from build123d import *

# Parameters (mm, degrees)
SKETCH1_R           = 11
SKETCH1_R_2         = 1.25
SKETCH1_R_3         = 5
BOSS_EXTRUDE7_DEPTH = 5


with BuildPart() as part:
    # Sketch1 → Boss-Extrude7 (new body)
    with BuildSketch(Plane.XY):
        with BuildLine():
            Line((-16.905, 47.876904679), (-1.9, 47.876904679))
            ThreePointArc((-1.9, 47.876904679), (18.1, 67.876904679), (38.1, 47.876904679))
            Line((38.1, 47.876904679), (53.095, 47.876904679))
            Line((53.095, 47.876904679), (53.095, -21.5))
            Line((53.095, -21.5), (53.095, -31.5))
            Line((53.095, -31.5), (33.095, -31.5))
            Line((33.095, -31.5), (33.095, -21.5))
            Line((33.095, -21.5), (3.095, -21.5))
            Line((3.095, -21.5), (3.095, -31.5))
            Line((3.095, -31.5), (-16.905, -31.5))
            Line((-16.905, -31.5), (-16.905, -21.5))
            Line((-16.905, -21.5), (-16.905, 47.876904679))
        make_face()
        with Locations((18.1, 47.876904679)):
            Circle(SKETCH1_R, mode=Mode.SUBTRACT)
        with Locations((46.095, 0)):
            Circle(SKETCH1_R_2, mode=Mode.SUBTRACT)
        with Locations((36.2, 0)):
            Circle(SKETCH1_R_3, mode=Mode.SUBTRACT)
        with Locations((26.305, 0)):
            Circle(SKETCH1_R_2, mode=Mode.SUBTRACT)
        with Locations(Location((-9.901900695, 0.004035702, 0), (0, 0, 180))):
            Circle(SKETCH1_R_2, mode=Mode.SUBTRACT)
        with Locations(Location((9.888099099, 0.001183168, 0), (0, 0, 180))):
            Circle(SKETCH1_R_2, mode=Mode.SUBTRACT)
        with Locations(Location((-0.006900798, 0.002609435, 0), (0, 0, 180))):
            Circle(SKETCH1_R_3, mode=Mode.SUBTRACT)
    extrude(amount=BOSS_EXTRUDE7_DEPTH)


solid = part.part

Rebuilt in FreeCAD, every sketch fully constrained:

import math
import FreeCAD as App
import Part
import Sketcher
Q = App.Units.Quantity

doc = App.newDocument("Part")
body = doc.addObject("PartDesign::Body", "Body")

# Sketch on XY plane
sketch1 = body.newObject("Sketcher::SketchObject", "Sketch")
sketch1.AttachmentSupport = (doc.getObject("XY_Plane"), [""])
sketch1.MapMode = "FlatFace"
sketch1.addGeometry(Part.LineSegment(App.Vector(-1.9, 47.876905, 0), App.Vector(-16.905, 47.876905, 0)), False)
sketch1.addGeometry(Part.LineSegment(App.Vector(-16.905, 47.876905, 0), App.Vector(-16.905, -31.5, 0)), False)
sketch1.addGeometry(Part.LineSegment(App.Vector(-16.905, -31.5, 0), App.Vector(3.095, -31.5, 0)), False)
sketch1.addGeometry(Part.LineSegment(App.Vector(3.095, -31.5, 0), App.Vector(3.095, -21.5, 0)), False)
sketch1.addGeometry(Part.LineSegment(App.Vector(3.095, -21.5, 0), App.Vector(33.095, -21.5, 0)), False)
sketch1.addGeometry(Part.LineSegment(App.Vector(33.095, -21.5, 0), App.Vector(33.095, -31.5, 0)), False)
sketch1.addGeometry(Part.LineSegment(App.Vector(33.095, -31.5, 0), App.Vector(53.095, -31.5, 0)), False)
sketch1.addGeometry(Part.LineSegment(App.Vector(53.095, -31.5, 0), App.Vector(53.095, 47.876905, 0)), False)
sketch1.addGeometry(Part.LineSegment(App.Vector(53.095, 47.876905, 0), App.Vector(38.1, 47.876905, 0)), False)
sketch1.addGeometry(Part.ArcOfCircle(Part.Circle(App.Vector(18.1, 47.876905, 0), App.Vector(0, 0, 1), 20), math.radians(0), math.radians(180)), False)
sketch1.addGeometry(Part.Circle(App.Vector(46.095, 0, 0), App.Vector(0, 0, 1), 1.25), False)
sketch1.addGeometry(Part.Circle(App.Vector(36.2, 0, 0), App.Vector(0, 0, 1), 5), False)
sketch1.addGeometry(Part.Circle(App.Vector(26.305, 0, 0), App.Vector(0, 0, 1), 1.25), False)
sketch1.addGeometry(Part.Circle(App.Vector(9.888099, 0.001183, 0), App.Vector(0, 0, 1), 1.25), False)
sketch1.addGeometry(Part.Circle(App.Vector(-0.006901, 0.002609, 0), App.Vector(0, 0, 1), 5), False)
sketch1.addGeometry(Part.Circle(App.Vector(-9.901901, 0.004036, 0), App.Vector(0, 0, 1), 1.25), False)
sketch1.addGeometry(Part.Circle(App.Vector(18.1, 47.876905, 0), App.Vector(0, 0, 1), 11), False)
sketch1.addConstraint(Sketcher.Constraint("Coincident", 0, 2, 1, 1))
sketch1.addConstraint(Sketcher.Constraint("Coincident", 1, 2, 2, 1))
sketch1.addConstraint(Sketcher.Constraint("Coincident", 2, 2, 3, 1))
sketch1.addConstraint(Sketcher.Constraint("Coincident", 3, 2, 4, 1))
sketch1.addConstraint(Sketcher.Constraint("Coincident", 4, 2, 5, 1))
sketch1.addConstraint(Sketcher.Constraint("Coincident", 5, 2, 6, 1))
sketch1.addConstraint(Sketcher.Constraint("Coincident", 6, 2, 7, 1))
sketch1.addConstraint(Sketcher.Constraint("Coincident", 7, 2, 8, 1))
sketch1.addConstraint(Sketcher.Constraint("Coincident", 8, 2, 9, 1))
sketch1.addConstraint(Sketcher.Constraint("Coincident", 9, 2, 0, 1))
sketch1.addConstraint(Sketcher.Constraint("Horizontal", 0))
sketch1.addConstraint(Sketcher.Constraint("Vertical", 1))
sketch1.addConstraint(Sketcher.Constraint("Horizontal", 2))
sketch1.addConstraint(Sketcher.Constraint("Vertical", 3))
sketch1.addConstraint(Sketcher.Constraint("Horizontal", 4))
sketch1.addConstraint(Sketcher.Constraint("Vertical", 5))
sketch1.addConstraint(Sketcher.Constraint("Horizontal", 6))
sketch1.addConstraint(Sketcher.Constraint("Vertical", 7))
sketch1.addConstraint(Sketcher.Constraint("Horizontal", 8))
sketch1.addConstraint(Sketcher.Constraint("Coincident", 16, 3, 9, 3))
sketch1.addConstraint(Sketcher.Constraint("Equal", 10, 12))
sketch1.addConstraint(Sketcher.Constraint("Equal", 12, 13))
sketch1.addConstraint(Sketcher.Constraint("Equal", 11, 14))
sketch1.addConstraint(Sketcher.Constraint("Equal", 13, 15))
sketch1.addConstraint(Sketcher.Constraint("PointOnObject", 10, 3, -1))
sketch1.addConstraint(Sketcher.Constraint("PointOnObject", 11, 3, -1))
sketch1.addConstraint(Sketcher.Constraint("PointOnObject", 12, 3, -1))
sketch1.addConstraint(Sketcher.Constraint("Horizontal", 16, 3, 0, 2))
sketch1.addConstraint(Sketcher.Constraint("Horizontal", 2, 2, 5, 2))
sketch1.addConstraint(Sketcher.Constraint("Horizontal", 0, 2, 7, 2))
sketch1.addConstraint(Sketcher.Constraint("Equal", 2, 6))
sketch1.addConstraint(Sketcher.Constraint("Diameter", 11, Q("10 mm")))
sketch1.addConstraint(Sketcher.Constraint("Diameter", 16, Q("22 mm")))
sketch1.addConstraint(Sketcher.Constraint("Radius", 9, Q("20 mm")))
sketch1.addConstraint(Sketcher.Constraint("Diameter", 10, Q("2.5 mm")))
sketch1.addConstraint(Sketcher.Constraint("DistanceX", 2, 1, 2, 2, Q("20 mm")))
sketch1.addConstraint(Sketcher.Constraint("DistanceX", 4, 1, 4, 2, Q("30 mm")))
sketch1.addConstraint(Sketcher.Constraint("DistanceY", 3, 1, 3, 2, Q("10 mm")))
sketch1.addConstraint(Sketcher.Constraint("DistanceX", 4, 2, 10, 3, Q("13 mm")))
sketch1.addConstraint(Sketcher.Constraint("DistanceX", -1, 1, 9, 3, Q("18.1 mm")))
sketch1.addConstraint(Sketcher.Constraint("DistanceX", -1, 1, 11, 3, Q("36.2 mm")))
sketch1.addConstraint(Sketcher.Constraint("DistanceY", 1, 2, -1, 1, Q("31.5 mm")))
sketch1.addConstraint(Sketcher.Constraint("DistanceX", 0, 2, 0, 1, Q("15.005 mm")))
sketch1.addConstraint(Sketcher.Constraint("DistanceX", 12, 3, 10, 3, Q("19.79 mm")))
sketch1.addConstraint(Sketcher.Constraint("DistanceX", 15, 3, 13, 3, Q("19.79 mm")))
sketch1.addConstraint(Sketcher.Constraint("DistanceX", 14, 3, 13, 3, Q("9.895 mm")))
sketch1.addConstraint(Sketcher.Constraint("DistanceX", -1, 1, 13, 3, Q("9.888099 mm")))
sketch1.addConstraint(Sketcher.Constraint("DistanceY", 1, 2, 1, 1, Q("79.376905 mm")))
sketch1.addConstraint(Sketcher.Constraint("DistanceY", -1, 1, 14, 3, Q("0.002609 mm")))
sketch1.addConstraint(Sketcher.Constraint("DistanceY", 13, 3, 9, 3, Q("47.875722 mm")))
sketch1.addConstraint(Sketcher.Constraint("DistanceY", 15, 3, 9, 3, Q("47.872869 mm")))
pad1 = body.newObject("PartDesign::Pad", "Pad")
pad1.Profile = sketch1
pad1.Length = 5

doc.recompute()
